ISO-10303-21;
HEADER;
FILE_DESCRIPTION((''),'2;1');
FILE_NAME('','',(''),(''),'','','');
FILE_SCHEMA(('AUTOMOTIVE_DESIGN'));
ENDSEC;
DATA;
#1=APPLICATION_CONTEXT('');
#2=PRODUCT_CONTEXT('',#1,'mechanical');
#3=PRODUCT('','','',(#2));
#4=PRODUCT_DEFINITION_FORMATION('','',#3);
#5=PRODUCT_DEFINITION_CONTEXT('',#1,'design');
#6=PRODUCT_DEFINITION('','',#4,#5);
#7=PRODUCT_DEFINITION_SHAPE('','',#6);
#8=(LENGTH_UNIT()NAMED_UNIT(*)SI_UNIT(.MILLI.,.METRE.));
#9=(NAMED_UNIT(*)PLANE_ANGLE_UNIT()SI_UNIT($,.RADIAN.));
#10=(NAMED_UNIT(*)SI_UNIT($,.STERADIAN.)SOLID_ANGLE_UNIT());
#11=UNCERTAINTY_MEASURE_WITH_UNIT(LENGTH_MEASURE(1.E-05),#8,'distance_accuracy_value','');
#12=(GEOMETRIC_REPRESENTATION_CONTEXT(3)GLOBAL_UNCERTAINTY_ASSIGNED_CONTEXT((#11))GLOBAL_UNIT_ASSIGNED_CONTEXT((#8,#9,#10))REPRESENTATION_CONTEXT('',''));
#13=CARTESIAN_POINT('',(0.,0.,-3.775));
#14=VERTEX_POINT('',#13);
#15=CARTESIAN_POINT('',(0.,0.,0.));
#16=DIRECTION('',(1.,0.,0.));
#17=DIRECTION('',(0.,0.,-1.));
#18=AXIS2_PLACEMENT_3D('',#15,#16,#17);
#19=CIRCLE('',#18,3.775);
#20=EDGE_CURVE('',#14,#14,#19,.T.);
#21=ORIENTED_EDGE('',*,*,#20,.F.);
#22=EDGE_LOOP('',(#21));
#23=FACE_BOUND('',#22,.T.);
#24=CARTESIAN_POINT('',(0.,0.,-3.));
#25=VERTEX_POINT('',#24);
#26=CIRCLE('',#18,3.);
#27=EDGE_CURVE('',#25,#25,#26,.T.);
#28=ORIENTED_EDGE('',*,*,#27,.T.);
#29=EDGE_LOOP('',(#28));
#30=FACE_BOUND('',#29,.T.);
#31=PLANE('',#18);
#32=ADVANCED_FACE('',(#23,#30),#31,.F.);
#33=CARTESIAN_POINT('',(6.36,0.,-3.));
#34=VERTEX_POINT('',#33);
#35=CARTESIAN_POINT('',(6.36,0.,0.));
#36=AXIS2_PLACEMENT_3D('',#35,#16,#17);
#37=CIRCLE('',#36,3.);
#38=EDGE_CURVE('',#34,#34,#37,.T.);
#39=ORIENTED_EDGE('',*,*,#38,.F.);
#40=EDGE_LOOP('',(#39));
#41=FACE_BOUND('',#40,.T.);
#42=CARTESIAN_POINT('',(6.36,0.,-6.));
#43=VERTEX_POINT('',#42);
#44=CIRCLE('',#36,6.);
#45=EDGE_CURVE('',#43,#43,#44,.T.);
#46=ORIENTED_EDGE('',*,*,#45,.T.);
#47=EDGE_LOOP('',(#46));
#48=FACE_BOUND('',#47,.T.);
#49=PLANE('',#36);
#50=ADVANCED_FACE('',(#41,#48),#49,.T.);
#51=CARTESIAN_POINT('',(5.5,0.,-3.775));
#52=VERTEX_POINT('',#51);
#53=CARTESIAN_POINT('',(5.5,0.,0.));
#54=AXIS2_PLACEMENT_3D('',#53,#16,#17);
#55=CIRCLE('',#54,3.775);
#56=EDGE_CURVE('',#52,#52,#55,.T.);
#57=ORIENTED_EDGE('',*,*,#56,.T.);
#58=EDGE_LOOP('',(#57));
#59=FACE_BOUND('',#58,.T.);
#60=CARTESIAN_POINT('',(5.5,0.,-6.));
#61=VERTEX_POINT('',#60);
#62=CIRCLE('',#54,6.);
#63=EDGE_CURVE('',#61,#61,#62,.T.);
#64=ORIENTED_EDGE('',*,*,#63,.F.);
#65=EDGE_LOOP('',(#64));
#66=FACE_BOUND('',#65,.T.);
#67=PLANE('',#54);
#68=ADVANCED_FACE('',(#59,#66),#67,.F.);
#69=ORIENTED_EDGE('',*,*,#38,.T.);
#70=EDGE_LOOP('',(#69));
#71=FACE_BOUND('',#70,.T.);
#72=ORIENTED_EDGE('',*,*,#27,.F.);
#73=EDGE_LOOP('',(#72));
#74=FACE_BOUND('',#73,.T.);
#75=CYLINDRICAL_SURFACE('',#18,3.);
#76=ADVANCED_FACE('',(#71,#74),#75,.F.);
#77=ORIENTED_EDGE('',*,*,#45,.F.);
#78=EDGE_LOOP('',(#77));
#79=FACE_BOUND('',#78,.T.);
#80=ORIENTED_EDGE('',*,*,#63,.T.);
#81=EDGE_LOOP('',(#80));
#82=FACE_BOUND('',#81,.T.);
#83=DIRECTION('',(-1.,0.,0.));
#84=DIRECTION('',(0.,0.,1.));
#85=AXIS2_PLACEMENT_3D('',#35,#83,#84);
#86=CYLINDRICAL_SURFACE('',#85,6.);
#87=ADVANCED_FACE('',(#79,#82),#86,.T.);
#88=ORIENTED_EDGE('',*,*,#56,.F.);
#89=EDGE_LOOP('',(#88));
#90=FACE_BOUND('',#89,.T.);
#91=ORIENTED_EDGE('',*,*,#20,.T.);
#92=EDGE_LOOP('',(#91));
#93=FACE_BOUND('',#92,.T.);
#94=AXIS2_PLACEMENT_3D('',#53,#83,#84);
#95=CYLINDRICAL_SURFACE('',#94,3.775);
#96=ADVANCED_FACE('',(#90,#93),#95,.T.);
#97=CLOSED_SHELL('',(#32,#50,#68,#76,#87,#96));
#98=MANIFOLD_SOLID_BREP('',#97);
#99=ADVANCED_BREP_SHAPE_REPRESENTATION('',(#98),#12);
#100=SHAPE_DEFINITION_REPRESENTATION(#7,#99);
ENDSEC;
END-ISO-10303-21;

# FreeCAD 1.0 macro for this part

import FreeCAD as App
import Part
import Sketcher

V = App.Vector

doc = App.newDocument("Part")
params = doc.addObject("Spreadsheet::Sheet", "Params")
for row, (alias, value) in enumerate([
    ("sketch1_diameter", "7.55 mm"),
    ("pad1_length", "5.5 mm"),
    ("sketch2_diameter", "12 mm"),
    ("pad2_length", "0.86 mm"),
    ("sketch3_diameter", "6 mm"),
], start=1):
    params.set(f"A{row}", alias)
    params.set(f"B{row}", "=" + value)
    params.setAlias(f"B{row}", alias)

body = doc.addObject("PartDesign::Body", "Body")

sketch1 = doc.addObject("Sketcher::SketchObject", "Sketch")
body.addObject(sketch1)
sketch1.AttachmentSupport = (doc.YZ_Plane, [""])
sketch1.MapMode = "FlatFace"
sketch1.addGeometry(Part.Circle(V(0, 0, 0), V(0, 0, 1), 3.775), False)
sketch1.addConstraint([
    Sketcher.Constraint("Coincident", 0, 3, -1, 1),
    Sketcher.Constraint("Diameter", 0, 7.55),
])
sketch1.setExpression("Constraints[1]", "Params.sketch1_diameter")
pad1 = doc.addObject("PartDesign::Pad", "Pad")
body.addObject(pad1)
pad1.Profile = sketch1
pad1.setExpression("Length", "Params.pad1_length")

sketch2 = doc.addObject("Sketcher::SketchObject", "Sketch001")
body.addObject(sketch2)
sketch2.AttachmentSupport = (doc.YZ_Plane, [""])
sketch2.MapMode = "FlatFace"
sketch2.AttachmentOffset = App.Placement(V(0, 0, 5.5), App.Rotation())
sketch2.addGeometry(Part.Circle(V(0, 0, 0), V(0, 0, 1), 6), False)
sketch2.addConstraint([
    Sketcher.Constraint("Coincident", 0, 3, -1, 1),
    Sketcher.Constraint("Diameter", 0, 12.0),
])
sketch2.setExpression("Constraints[1]", "Params.sketch2_diameter")
pad2 = doc.addObject("PartDesign::Pad", "Pad001")
body.addObject(pad2)
pad2.Profile = sketch2
pad2.setExpression("Length", "Params.pad2_length")

sketch3 = doc.addObject("Sketcher::SketchObject", "Sketch002")
body.addObject(sketch3)
sketch3.AttachmentSupport = (doc.YZ_Plane, [""])
sketch3.MapMode = "FlatFace"
sketch3.AttachmentOffset = App.Placement(V(0, 0, 6.36), App.Rotation())
sketch3.addGeometry(Part.Circle(V(0, 0, 0), V(0, 0, 1), 3), False)
sketch3.addConstraint([
    Sketcher.Constraint("Coincident", 0, 3, -1, 1),
    Sketcher.Constraint("Diameter", 0, 6.0),
])
sketch3.setExpression("Constraints[1]", "Params.sketch3_diameter")
pocket1 = doc.addObject("PartDesign::Pocket", "Pocket")
body.addObject(pocket1)
pocket1.Profile = sketch3
pocket1.Type = "ThroughAll"

doc.recompute()
